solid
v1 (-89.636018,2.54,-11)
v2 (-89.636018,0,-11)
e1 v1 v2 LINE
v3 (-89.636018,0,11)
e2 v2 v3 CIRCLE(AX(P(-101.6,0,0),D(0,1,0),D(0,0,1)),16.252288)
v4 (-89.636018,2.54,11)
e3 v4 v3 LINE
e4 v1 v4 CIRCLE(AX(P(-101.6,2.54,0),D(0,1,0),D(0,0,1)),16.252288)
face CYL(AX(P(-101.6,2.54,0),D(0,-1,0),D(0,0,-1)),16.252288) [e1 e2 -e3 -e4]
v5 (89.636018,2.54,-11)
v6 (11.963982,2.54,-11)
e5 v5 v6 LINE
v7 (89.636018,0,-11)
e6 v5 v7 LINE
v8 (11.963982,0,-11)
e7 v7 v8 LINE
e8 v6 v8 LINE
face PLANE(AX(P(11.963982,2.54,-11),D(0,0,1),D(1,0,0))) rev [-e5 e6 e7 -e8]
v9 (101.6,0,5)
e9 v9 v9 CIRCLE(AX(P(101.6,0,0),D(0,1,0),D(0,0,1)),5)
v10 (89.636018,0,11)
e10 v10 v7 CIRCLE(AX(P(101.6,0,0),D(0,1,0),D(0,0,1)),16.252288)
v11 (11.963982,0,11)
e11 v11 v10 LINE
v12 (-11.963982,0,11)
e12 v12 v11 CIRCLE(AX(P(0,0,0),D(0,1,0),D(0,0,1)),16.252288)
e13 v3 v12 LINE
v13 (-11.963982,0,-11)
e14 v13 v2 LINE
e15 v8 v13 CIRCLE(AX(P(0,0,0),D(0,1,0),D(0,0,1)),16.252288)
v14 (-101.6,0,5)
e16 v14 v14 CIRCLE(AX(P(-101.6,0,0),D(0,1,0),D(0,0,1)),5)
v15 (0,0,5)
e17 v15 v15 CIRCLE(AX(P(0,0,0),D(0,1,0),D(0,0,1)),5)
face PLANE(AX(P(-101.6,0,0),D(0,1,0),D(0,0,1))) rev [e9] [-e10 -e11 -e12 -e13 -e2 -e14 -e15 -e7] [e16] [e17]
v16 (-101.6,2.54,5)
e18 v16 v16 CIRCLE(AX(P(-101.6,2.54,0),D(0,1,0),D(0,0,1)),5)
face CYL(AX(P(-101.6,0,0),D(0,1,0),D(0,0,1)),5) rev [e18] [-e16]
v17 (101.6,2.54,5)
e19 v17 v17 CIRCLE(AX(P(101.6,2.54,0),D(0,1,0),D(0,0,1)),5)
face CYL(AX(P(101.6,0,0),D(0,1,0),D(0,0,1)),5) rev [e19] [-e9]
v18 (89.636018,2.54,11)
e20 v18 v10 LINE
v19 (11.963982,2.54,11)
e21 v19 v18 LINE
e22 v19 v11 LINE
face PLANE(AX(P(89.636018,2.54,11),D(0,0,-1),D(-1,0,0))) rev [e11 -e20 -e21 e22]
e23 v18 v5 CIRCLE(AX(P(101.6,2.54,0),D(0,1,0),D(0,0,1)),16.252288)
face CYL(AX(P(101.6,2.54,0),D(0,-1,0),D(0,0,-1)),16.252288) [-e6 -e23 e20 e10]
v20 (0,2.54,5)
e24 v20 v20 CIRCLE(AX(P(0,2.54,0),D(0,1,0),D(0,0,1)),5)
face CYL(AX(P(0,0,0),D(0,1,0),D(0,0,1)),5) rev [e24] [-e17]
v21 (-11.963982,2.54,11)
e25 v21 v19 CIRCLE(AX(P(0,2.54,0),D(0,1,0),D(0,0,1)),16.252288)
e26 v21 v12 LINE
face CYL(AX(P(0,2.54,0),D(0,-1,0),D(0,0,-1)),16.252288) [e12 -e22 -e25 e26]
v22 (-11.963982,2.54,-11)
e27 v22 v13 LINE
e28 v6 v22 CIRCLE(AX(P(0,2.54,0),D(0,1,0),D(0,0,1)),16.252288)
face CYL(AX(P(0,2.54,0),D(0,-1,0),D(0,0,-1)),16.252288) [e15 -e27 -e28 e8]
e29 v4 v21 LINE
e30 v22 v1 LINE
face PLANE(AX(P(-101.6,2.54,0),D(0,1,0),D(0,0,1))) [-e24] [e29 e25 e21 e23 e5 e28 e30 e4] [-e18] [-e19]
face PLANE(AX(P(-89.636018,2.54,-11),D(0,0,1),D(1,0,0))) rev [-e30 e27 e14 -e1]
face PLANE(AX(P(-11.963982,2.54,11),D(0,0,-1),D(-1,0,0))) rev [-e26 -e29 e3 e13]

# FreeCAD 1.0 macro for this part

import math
import FreeCAD as App
import Part
import Sketcher

doc = App.newDocument("Part")
body = doc.addObject("PartDesign::Body", "Body")

sketch1 = body.newObject("Sketcher::SketchObject", "Sketch")
sketch1.AttachmentSupport = (doc.getObject("XZ_Plane"), [""])
sketch1.MapMode = "FlatFace"
sketch1.addGeometry([
    Part.LineSegment(App.Vector(-11.963982, -11, 0), App.Vector(-89.636018, -11, 0)),
    Part.ArcOfCircle(Part.Circle(App.Vector(-101.6, 0, 0), App.Vector(0, 0, 1), 16.252288), math.radians(42.596248), math.radians(317.403752)),
    Part.LineSegment(App.Vector(-89.636018, 11, 0), App.Vector(-11.963982, 11, 0)),
    Part.ArcOfCircle(Part.Circle(App.Vector(0, 0, 0), App.Vector(0, 0, 1), 16.252288), math.radians(42.596248), math.radians(137.403752)),
    Part.LineSegment(App.Vector(11.963982, 11, 0), App.Vector(89.636018, 11, 0)),
    Part.ArcOfCircle(Part.Circle(App.Vector(101.6, 0, 0), App.Vector(0, 0, 1), 16.252288), math.radians(-137.403752), math.radians(137.403752)),
    Part.LineSegment(App.Vector(89.636018, -11, 0), App.Vector(11.963982, -11, 0)),
    Part.ArcOfCircle(Part.Circle(App.Vector(0, 0, 0), App.Vector(0, 0, 1), 16.252288), math.radians(-137.403752), math.radians(-42.596248)),
], False)
sketch1.addConstraint([
    Sketcher.Constraint("Coincident", 0, 2, 1, 2),
    Sketcher.Constraint("Coincident", 1, 1, 2, 1),
    Sketcher.Constraint("Coincident", 2, 2, 3, 2),
    Sketcher.Constraint("Coincident", 3, 1, 4, 1),
    Sketcher.Constraint("Coincident", 4, 2, 5, 2),
    Sketcher.Constraint("Coincident", 5, 1, 6, 1),
    Sketcher.Constraint("Coincident", 6, 2, 7, 2),
    Sketcher.Constraint("Coincident", 7, 1, 0, 1),
    Sketcher.Constraint("Horizontal", 0),
    Sketcher.Constraint("Horizontal", 2),
    Sketcher.Constraint("Horizontal", 4),
    Sketcher.Constraint("Horizontal", 6),
    Sketcher.Constraint("Coincident", 3, 3, -1, 1),
    Sketcher.Constraint("Coincident", 7, 3, -1, 1),
    Sketcher.Constraint("Equal", 1, 3),
    Sketcher.Constraint("Equal", 3, 5),
    Sketcher.Constraint("Equal", 5, 7),
    Sketcher.Constraint("Symmetric", 1, 3, 5, 3, -1, 1),
    Sketcher.Constraint("Symmetric", 1, 1, 4, 2, -2),
    Sketcher.Constraint("Horizontal", 0, 2, 5, 1),
    Sketcher.Constraint("Vertical", 0, 2, 1, 1),
    Sketcher.Constraint("DistanceY", 0, 2, -1, 1, 11.0),
    Sketcher.Constraint("DistanceX", 1, 3, -1, 1, 101.6),
    Sketcher.Constraint("Radius", 1, 16.252288),
])
pad1 = body.newObject("PartDesign::Pad", "Pad")
pad1.Profile = sketch1
pad1.Length = 2.54
pad1.Reversed = True

sketch2 = body.newObject("Sketcher::SketchObject", "Sketch001")
sketch2.AttachmentSupport = (doc.getObject("XZ_Plane"), [""])
sketch2.MapMode = "FlatFace"
sketch2.AttachmentOffset = App.Placement(App.Vector(0, 0, -2.54), App.Rotation())
sketch2.addGeometry([
    Part.Circle(App.Vector(-101.6, 0, 0), App.Vector(0, 0, 1), 5),
    Part.Circle(App.Vector(101.6, 0, 0), App.Vector(0, 0, 1), 5),
    Part.Circle(App.Vector(0, 0, 0), App.Vector(0, 0, 1), 5),
], False)
sketch2.addConstraint([
    Sketcher.Constraint("Coincident", 2, 3, -1, 1),
    Sketcher.Constraint("Equal", 0, 1),
    Sketcher.Constraint("Equal", 1, 2),
    Sketcher.Constraint("Symmetric", 0, 3, 1, 3, -1, 1),
    Sketcher.Constraint("PointOnObject", 0, 3, -1),
    Sketcher.Constraint("Diameter", 0, 10.0),
    Sketcher.Constraint("DistanceX", 0, 3, -1, 1, 101.6),
])
pocket1 = body.newObject("PartDesign::Pocket", "Pocket")
pocket1.Profile = sketch2
pocket1.Type = "ThroughAll"
pocket1.Midplane = True

doc.recompute()
